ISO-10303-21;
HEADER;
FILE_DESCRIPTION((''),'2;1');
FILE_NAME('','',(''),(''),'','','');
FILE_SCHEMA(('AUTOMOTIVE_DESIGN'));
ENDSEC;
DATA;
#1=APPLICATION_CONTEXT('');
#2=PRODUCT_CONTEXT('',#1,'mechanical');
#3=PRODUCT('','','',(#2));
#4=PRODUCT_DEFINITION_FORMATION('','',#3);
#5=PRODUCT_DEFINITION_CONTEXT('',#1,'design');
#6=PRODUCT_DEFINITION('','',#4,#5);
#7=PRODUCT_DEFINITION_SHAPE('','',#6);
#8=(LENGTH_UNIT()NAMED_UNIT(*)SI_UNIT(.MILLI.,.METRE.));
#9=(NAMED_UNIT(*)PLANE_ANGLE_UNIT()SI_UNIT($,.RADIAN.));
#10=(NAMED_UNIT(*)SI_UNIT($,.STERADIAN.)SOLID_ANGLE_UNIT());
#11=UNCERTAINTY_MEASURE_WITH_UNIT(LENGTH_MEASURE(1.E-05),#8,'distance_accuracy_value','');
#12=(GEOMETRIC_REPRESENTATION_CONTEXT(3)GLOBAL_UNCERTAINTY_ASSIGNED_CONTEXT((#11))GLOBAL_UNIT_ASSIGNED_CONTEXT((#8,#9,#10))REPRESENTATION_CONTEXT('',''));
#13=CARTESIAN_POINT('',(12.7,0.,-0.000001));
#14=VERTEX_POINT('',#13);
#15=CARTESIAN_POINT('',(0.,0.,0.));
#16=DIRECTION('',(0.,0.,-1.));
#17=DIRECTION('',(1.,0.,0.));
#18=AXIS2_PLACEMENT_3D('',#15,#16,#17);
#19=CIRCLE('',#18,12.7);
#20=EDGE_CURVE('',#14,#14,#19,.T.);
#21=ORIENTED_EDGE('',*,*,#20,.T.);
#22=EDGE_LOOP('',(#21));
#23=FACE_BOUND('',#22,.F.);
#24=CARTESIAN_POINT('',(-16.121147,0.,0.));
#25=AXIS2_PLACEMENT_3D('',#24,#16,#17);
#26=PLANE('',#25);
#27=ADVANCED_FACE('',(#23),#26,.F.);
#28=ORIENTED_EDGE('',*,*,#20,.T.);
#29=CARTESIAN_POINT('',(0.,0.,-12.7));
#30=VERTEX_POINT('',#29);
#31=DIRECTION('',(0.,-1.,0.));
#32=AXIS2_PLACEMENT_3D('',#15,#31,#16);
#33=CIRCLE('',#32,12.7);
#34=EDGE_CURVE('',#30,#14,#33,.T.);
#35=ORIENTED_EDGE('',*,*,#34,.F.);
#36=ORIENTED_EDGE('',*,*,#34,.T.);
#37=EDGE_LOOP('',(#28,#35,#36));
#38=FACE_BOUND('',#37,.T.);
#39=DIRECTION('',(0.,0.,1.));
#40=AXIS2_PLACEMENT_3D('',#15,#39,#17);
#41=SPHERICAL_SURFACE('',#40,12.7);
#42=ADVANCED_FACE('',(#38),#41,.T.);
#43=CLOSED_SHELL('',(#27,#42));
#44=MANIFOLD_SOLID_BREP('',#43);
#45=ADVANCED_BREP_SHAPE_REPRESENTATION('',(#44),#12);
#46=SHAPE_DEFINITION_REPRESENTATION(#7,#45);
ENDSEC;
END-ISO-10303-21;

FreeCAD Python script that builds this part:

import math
import FreeCAD as App
import Part
import Sketcher
Q = App.Units.Quantity


def add_polygon(sketch, points):
    """Adds a closed chain of lines whose ends are joined by coincident constraints."""
    first, n = sketch.GeometryCount, len(points)
    for a, b in zip(points, points[1:] + points[:1]):
        sketch.addGeometry(Part.LineSegment(App.Vector(*a, 0), App.Vector(*b, 0)), False)
    for i in range(n):
        sketch.addConstraint(Sketcher.Constraint("Coincident", first + i, 2, first + (i + 1) % n, 1))

doc = App.newDocument("Part")
body = doc.addObject("PartDesign::Body", "Body")

# Sketch on XZ plane
sketch1 = doc.addObject("Sketcher::SketchObject", "Sketch")
body.addObject(sketch1)
sketch1.AttachmentSupport = (doc.XZ_Plane, [""])
sketch1.MapMode = "FlatFace"
sketch1.addGeometry([
    Part.LineSegment(App.Vector(0, 13, 0), App.Vector(0, -13, 0)),
    Part.ArcOfCircle(Part.Circle(App.Vector(0, 0, 0), App.Vector(0, 0, 1), 13), math.radians(-90), math.radians(90)),
], False)
sketch1.addConstraint([
    Sketcher.Constraint("Coincident", 0, 1, 1, 2),
    Sketcher.Constraint("Coincident", 1, 1, 0, 2),
    Sketcher.Constraint("Vertical", 0),
    Sketcher.Constraint("Coincident", 1, 3, -1, 1),
    Sketcher.Constraint("PointOnObject", 0, 1, -2),
    Sketcher.Constraint("Radius", 1, Q("0.5 in")),
])
revolution = doc.addObject("PartDesign::Revolution", "Revolution")
body.addObject(revolution)
revolution.Profile = sketch1
revolution.ReferenceAxis = (sketch1, ["V_Axis"])
revolution.Angle = 360

# Sketch on XZ plane
sketch2 = doc.addObject("Sketcher::SketchObject", "Sketch001")
body.addObject(sketch2)
sketch2.AttachmentSupport = (doc.XZ_Plane, [""])
sketch2.MapMode = "FlatFace"
add_polygon(sketch2, [(-16, 15), (-16, 0), (18, 0), (18, 15)])  # lines 0-3
sketch2.addConstraint([
    Sketcher.Constraint("Vertical", 0),
    Sketcher.Constraint("Horizontal", 1),
    Sketcher.Constraint("Vertical", 2),
    Sketcher.Constraint("Horizontal", 3),
    Sketcher.Constraint("PointOnObject", 0, 2, -1),
    Sketcher.Constraint("DistanceX", 1, 1, 1, 2, 33.739738),
    Sketcher.Constraint("DistanceY", 0, 2, 0, 1, 14.980557),
    Sketcher.Constraint("DistanceX", -1, 1, 1, 2, 17.618591),
])
pocket1 = doc.addObject("PartDesign::Pocket", "Pocket")
body.addObject(pocket1)
pocket1.Profile = sketch2
pocket1.Length = Q("1 in")
pocket1.Midplane = True

doc.recompute()
